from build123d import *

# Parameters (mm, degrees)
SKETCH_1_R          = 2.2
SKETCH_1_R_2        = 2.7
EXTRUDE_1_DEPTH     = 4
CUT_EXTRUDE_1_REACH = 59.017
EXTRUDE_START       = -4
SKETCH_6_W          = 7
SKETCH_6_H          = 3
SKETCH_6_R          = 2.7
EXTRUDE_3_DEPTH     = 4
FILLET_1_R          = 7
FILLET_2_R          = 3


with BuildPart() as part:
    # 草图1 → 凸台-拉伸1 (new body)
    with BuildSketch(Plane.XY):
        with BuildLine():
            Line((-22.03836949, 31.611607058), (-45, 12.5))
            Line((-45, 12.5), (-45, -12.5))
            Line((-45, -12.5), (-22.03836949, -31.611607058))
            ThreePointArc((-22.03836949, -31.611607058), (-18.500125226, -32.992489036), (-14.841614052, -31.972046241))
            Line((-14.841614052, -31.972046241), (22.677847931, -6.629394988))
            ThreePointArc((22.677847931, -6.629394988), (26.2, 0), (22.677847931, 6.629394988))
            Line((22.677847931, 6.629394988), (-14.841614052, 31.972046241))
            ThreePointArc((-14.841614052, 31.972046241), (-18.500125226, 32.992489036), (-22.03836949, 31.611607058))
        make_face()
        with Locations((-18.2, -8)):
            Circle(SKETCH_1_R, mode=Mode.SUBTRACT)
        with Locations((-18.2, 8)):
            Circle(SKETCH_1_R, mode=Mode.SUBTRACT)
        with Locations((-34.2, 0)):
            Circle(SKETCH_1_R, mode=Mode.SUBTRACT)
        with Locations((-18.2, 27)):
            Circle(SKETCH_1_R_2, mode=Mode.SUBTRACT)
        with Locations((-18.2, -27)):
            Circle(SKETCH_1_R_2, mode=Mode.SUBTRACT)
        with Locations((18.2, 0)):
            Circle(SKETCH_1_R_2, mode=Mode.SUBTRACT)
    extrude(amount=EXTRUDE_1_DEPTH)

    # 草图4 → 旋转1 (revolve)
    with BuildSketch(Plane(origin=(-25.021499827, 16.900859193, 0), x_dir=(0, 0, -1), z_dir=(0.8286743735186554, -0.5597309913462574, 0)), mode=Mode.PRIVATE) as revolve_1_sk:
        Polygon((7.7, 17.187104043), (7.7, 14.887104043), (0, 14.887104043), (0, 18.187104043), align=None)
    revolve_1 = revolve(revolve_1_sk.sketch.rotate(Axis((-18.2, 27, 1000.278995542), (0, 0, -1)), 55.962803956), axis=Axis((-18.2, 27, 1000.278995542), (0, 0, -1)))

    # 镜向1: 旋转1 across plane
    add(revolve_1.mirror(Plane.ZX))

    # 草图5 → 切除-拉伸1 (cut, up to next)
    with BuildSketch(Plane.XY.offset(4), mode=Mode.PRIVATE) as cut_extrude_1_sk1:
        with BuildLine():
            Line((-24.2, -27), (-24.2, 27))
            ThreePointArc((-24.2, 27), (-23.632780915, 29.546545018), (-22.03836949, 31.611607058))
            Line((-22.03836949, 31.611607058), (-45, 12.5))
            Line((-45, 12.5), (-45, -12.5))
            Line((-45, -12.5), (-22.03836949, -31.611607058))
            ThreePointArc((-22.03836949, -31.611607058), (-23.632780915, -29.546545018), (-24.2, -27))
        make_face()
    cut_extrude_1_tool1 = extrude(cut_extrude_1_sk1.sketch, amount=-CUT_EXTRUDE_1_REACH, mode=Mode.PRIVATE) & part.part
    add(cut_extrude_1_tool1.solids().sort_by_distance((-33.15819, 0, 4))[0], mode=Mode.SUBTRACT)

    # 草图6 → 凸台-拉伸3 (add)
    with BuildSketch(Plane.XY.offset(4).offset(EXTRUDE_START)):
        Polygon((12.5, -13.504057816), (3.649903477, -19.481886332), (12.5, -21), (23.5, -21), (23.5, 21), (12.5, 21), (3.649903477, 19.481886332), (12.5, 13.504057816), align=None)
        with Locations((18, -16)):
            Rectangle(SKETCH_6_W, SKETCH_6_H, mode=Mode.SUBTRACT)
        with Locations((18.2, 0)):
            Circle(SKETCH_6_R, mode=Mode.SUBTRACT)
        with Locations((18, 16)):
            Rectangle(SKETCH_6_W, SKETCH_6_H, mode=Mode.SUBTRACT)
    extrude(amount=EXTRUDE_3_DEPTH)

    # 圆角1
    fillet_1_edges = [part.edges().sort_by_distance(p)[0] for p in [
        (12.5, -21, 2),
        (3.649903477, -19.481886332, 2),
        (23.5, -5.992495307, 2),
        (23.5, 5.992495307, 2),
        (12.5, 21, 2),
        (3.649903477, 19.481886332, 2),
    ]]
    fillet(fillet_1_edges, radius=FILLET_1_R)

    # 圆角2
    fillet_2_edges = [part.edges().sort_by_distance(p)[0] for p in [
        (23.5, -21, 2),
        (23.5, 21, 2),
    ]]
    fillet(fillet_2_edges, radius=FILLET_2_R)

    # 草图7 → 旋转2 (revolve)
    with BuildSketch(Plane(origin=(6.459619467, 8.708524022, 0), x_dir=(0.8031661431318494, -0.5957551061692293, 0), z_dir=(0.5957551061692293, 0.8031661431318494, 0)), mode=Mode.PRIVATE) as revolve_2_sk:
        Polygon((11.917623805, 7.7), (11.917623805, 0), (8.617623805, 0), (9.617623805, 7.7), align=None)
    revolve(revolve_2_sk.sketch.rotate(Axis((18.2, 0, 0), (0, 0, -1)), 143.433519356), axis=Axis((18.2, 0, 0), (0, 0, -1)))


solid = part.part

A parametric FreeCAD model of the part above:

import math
import FreeCAD as App
import Part
import Sketcher
Q = App.Units.Quantity


def edges_at(feature, points):
    """Names of the edges that pass closest to the given points."""
    edges = feature.Shape.Edges
    near = lambda p: min(range(len(edges)), key=lambda i: edges[i].distToShape(Part.Vertex(*p))[0])
    return sorted({f"Edge{near(p) + 1}" for p in points})

doc = App.newDocument("Part")
body = doc.addObject("PartDesign::Body", "Body")

sketch1 = doc.addObject("Sketcher::SketchObject", "Sketch")
body.addObject(sketch1)
sketch1.AttachmentSupport = (doc.XY_Plane, [""])
sketch1.MapMode = "FlatFace"
sketch1.addGeometry([
    Part.LineSegment(App.Vector(-22, 31.6, 0), App.Vector(-45, 12.5, 0)),
    Part.LineSegment(App.Vector(-45, 12.5, 0), App.Vector(-45, -12.5, 0)),
    Part.LineSegment(App.Vector(-45, -12.5, 0), App.Vector(-22, -31.6, 0)),
    Part.ArcOfCircle(Part.Circle(App.Vector(-18.2, -27, 0), App.Vector(0, 0, 1), 6), math.radians(-130), math.radians(-56)),
    Part.LineSegment(App.Vector(-14.8, -32, 0), App.Vector(22.7, -6.6, 0)),
    Part.ArcOfCircle(Part.Circle(App.Vector(18.2, 0, 0), App.Vector(0, 0, 1), 8), math.radians(-56), math.radians(56)),
    Part.LineSegment(App.Vector(22.7, 6.6, 0), App.Vector(-14.8, 32, 0)),
    Part.ArcOfCircle(Part.Circle(App.Vector(-18.2, 27, 0), App.Vector(0, 0, 1), 6), math.radians(56), math.radians(130)),
    Part.Circle(App.Vector(-18.2, -27, 0), App.Vector(0, 0, 1), 2.7),
    Part.Circle(App.Vector(-18.2, -8, 0), App.Vector(0, 0, 1), 2.2),
    Part.Circle(App.Vector(-34.2, 0, 0), App.Vector(0, 0, 1), 2.2),
    Part.Circle(App.Vector(-18.2, 8, 0), App.Vector(0, 0, 1), 2.2),
    Part.Circle(App.Vector(-18.2, 27, 0), App.Vector(0, 0, 1), 2.7),
    Part.Circle(App.Vector(18.2, 0, 0), App.Vector(0, 0, 1), 2.7),
], False)
sketch1.addConstraint([
    Sketcher.Constraint("Coincident", 0, 2, 1, 1),
    Sketcher.Constraint("Coincident", 1, 2, 2, 1),
    Sketcher.Constraint("Tangent", 2, 2, 3, 1),
    Sketcher.Constraint("Tangent", 3, 2, 4, 1),
    Sketcher.Constraint("Tangent", 4, 2, 5, 1),
    Sketcher.Constraint("Tangent", 5, 2, 6, 1),
    Sketcher.Constraint("Tangent", 6, 2, 7, 1),
    Sketcher.Constraint("Tangent", 7, 2, 0, 1),
    Sketcher.Constraint("Vertical", 1),
    Sketcher.Constraint("Coincident", 8, 3, 3, 3),
    Sketcher.Constraint("Coincident", 12, 3, 7, 3),
    Sketcher.Constraint("Coincident", 13, 3, 5, 3),
    Sketcher.Constraint("Equal", 3, 7),
    Sketcher.Constraint("Equal", 9, 10),
    Sketcher.Constraint("Equal", 10, 11),
    Sketcher.Constraint("Equal", 8, 12),
    Sketcher.Constraint("Equal", 12, 13),
    Sketcher.Constraint("Symmetric", 3, 3, 7, 3, -1),
    Sketcher.Constraint("Symmetric", 9, 3, 11, 3, -1),
    Sketcher.Constraint("PointOnObject", 5, 3, -1),
    Sketcher.Constraint("PointOnObject", 10, 3, -1),
    Sketcher.Constraint("Vertical", 8, 3, 9, 3),
    Sketcher.Constraint("Vertical", 2, 2, 7, 2),
    Sketcher.Constraint("Radius", 3, Q("6 mm")),
    Sketcher.Constraint("Radius", 5, Q("8 mm")),
    Sketcher.Constraint("Diameter", 8, Q("5.4 mm")),
    Sketcher.Constraint("Diameter", 9, Q("4.4 mm")),
    Sketcher.Constraint("DistanceY", 1, 2, 1, 1, Q("25 mm")),
    Sketcher.Constraint("DistanceY", 3, 3, -1, 1, Q("27 mm")),
    Sketcher.Constraint("DistanceY", 9, 3, -1, 1, Q("8 mm")),
    Sketcher.Constraint("DistanceX", 0, 2, -1, 1, Q("45 mm")),
    Sketcher.Constraint("DistanceX", 10, 3, 9, 3, Q("16 mm")),
    Sketcher.Constraint("DistanceX", 3, 3, -1, 1, Q("18.2 mm")),
    Sketcher.Constraint("DistanceX", -1, 1, 5, 3, Q("18.2 mm")),
])
pad1 = doc.addObject("PartDesign::Pad", "Pad")
body.addObject(pad1)
pad1.Profile = sketch1
pad1.Length = 4

sketch2 = doc.addObject("Sketcher::SketchObject", "Sketch001")
body.addObject(sketch2)
sketch2.Placement = App.Placement(App.Vector(-25.0215, 16.900859, 0), App.Rotation(App.Vector(0, 0, -1), App.Vector(0.559730991, 0.828674374, 0), App.Vector(0.828674374, -0.559730991, 0), "ZXY"))
sketch2.addGeometry([
    Part.LineSegment(App.Vector(7.7, 14.9, 0), App.Vector(7.7, 17.2, 0)),
    Part.LineSegment(App.Vector(7.7, 17.2, 0), App.Vector(0, 18.2, 0)),
    Part.LineSegment(App.Vector(0, 18.2, 0), App.Vector(0, 14.9, 0)),
    Part.LineSegment(App.Vector(0, 14.9, 0), App.Vector(7.7, 14.9, 0)),
], False)
sketch2.addGeometry(Part.LineSegment(App.Vector(0, 12.2, 0), App.Vector(7.7, 12.2, 0)), True)
sketch2.addConstraint([
    Sketcher.Constraint("Coincident", 0, 2, 1, 1),
    Sketcher.Constraint("Coincident", 1, 2, 2, 1),
    Sketcher.Constraint("Coincident", 2, 2, 3, 1),
    Sketcher.Constraint("Coincident", 3, 2, 0, 1),
    Sketcher.Constraint("Vertical", 0),
    Sketcher.Constraint("Vertical", 2),
    Sketcher.Constraint("Horizontal", 3),
    Sketcher.Constraint("Horizontal", 4),
    Sketcher.Constraint("PointOnObject", 1, 2, -2),
    Sketcher.Constraint("PointOnObject", 4, 1, -2),
    Sketcher.Constraint("Vertical", 3, 2, 4, 2),
    Sketcher.Constraint("DistanceX", 3, 1, 3, 2, Q("7.7 mm")),
    Sketcher.Constraint("DistanceY", 0, 1, 0, 2, Q("2.3 mm")),
    Sketcher.Constraint("DistanceY", 2, 2, 2, 1, Q("3.3 mm")),
    Sketcher.Constraint("DistanceY", 4, 1, 1, 2, Q("6 mm")),
    Sketcher.Constraint("DistanceY", -1, 1, 0, 2, Q("17.187104 mm")),
])
revolution = doc.addObject("PartDesign::Revolution", "Revolution")
body.addObject(revolution)
revolution.Profile = sketch2
revolution.ReferenceAxis = (sketch2, ["Axis0"])
revolution.Angle = 360
doc.recompute()

mirrored = doc.addObject("PartDesign::Mirrored", "Mirrored")
body.addObject(mirrored)
mirrored.Originals = [revolution]
mirrored.MirrorPlane = (doc.XZ_Plane, [""])
body.Tip = mirrored

sketch3 = doc.addObject("Sketcher::SketchObject", "Sketch002")
body.addObject(sketch3)
sketch3.AttachmentSupport = (doc.XY_Plane, [""])
sketch3.MapMode = "FlatFace"
sketch3.AttachmentOffset = App.Placement(App.Vector(0, 0, 4), App.Rotation())
sketch3.addGeometry([
    Part.LineSegment(App.Vector(-24, -27, 0), App.Vector(-24, 27, 0)),
    Part.ArcOfCircle(Part.Circle(App.Vector(-18, 27, 0), App.Vector(0, 0, 1), 6), math.radians(130), math.radians(180)),
    Part.LineSegment(App.Vector(-22, 32, 0), App.Vector(-45, 12, 0)),
    Part.LineSegment(App.Vector(-45, 12, 0), App.Vector(-45, -12, 0)),
    Part.LineSegment(App.Vector(-45, -12, 0), App.Vector(-22, -32, 0)),
    Part.ArcOfCircle(Part.Circle(App.Vector(-18, -27, 0), App.Vector(0, 0, 1), 6), math.radians(180), math.radians(230)),
], False)
sketch3.addConstraint([
    Sketcher.Constraint("Tangent", 0, 2, 1, 2),
    Sketcher.Constraint("Tangent", 1, 1, 2, 1),
    Sketcher.Constraint("Coincident", 2, 2, 3, 1),
    Sketcher.Constraint("Coincident", 3, 2, 4, 1),
    Sketcher.Constraint("Tangent", 4, 2, 5, 2),
    Sketcher.Constraint("Tangent", 5, 1, 0, 1),
    Sketcher.Constraint("Vertical", 0),
    Sketcher.Constraint("Vertical", 3),
    Sketcher.Constraint("Equal", 1, 5),
    Sketcher.Constraint("Symmetric", 1, 1, 4, 2, -1),
    Sketcher.Constraint("Radius", 1, Q("6 mm")),
    Sketcher.Constraint("DistanceY", 0, 1, 0, 2, Q("54 mm")),
    Sketcher.Constraint("DistanceY", 3, 2, 3, 1, Q("25 mm")),
    Sketcher.Constraint("DistanceX", 2, 2, -1, 1, Q("45 mm")),
    Sketcher.Constraint("DistanceX", 1, 3, -1, 1, Q("18.2 mm")),
])
pocket1 = doc.addObject("PartDesign::Pocket", "Pocket")
body.addObject(pocket1)
pocket1.Profile = sketch3
pocket1.Length = 4

sketch4 = doc.addObject("Sketcher::SketchObject", "Sketch003")
body.addObject(sketch4)
sketch4.AttachmentSupport = (doc.XY_Plane, [""])
sketch4.MapMode = "FlatFace"
sketch4.addGeometry([
    Part.LineSegment(App.Vector(12.5, -13.5, 0), App.Vector(3.6, -19.5, 0)),
    Part.LineSegment(App.Vector(3.6, -19.5, 0), App.Vector(12.5, -21, 0)),
    Part.LineSegment(App.Vector(12.5, -21, 0), App.Vector(23.5, -21, 0)),
    Part.LineSegment(App.Vector(23.5, -21, 0), App.Vector(23.5, 21, 0)),
    Part.LineSegment(App.Vector(23.5, 21, 0), App.Vector(12.5, 21, 0)),
    Part.LineSegment(App.Vector(12.5, 21, 0), App.Vector(3.6, 19.5, 0)),
    Part.LineSegment(App.Vector(3.6, 19.5, 0), App.Vector(12.5, 13.5, 0)),
    Part.LineSegment(App.Vector(12.5, 13.5, 0), App.Vector(12.5, -13.5, 0)),
    Part.LineSegment(App.Vector(21.5, -17.5, 0), App.Vector(14.5, -17.5, 0)),
    Part.LineSegment(App.Vector(14.5, -17.5, 0), App.Vector(14.5, -14.5, 0)),
    Part.LineSegment(App.Vector(14.5, -14.5, 0), App.Vector(21.5, -14.5, 0)),
    Part.LineSegment(App.Vector(21.5, -14.5, 0), App.Vector(21.5, -17.5, 0)),
    Part.Circle(App.Vector(18.2, 0, 0), App.Vector(0, 0, 1), 2.7),
    Part.LineSegment(App.Vector(21.5, 14.5, 0), App.Vector(14.5, 14.5, 0)),
    Part.LineSegment(App.Vector(14.5, 14.5, 0), App.Vector(14.5, 17.5, 0)),
    Part.LineSegment(App.Vector(14.5, 17.5, 0), App.Vector(21.5, 17.5, 0)),
    Part.LineSegment(App.Vector(21.5, 17.5, 0), App.Vector(21.5, 14.5, 0)),
], False)
sketch4.addConstraint([
    Sketcher.Constraint("Coincident", 0, 2, 1, 1),
    Sketcher.Constraint("Coincident", 1, 2, 2, 1),
    Sketcher.Constraint("Coincident", 2, 2, 3, 1),
    Sketcher.Constraint("Coincident", 3, 2, 4, 1),
    Sketcher.Constraint("Coincident", 4, 2, 5, 1),
    Sketcher.Constraint("Coincident", 5, 2, 6, 1),
    Sketcher.Constraint("Coincident", 6, 2, 7, 1),
    Sketcher.Constraint("Coincident", 7, 2, 0, 1),
    Sketcher.Constraint("Coincident", 8, 2, 9, 1),
    Sketcher.Constraint("Coincident", 9, 2, 10, 1),
    Sketcher.Constraint("Coincident", 10, 2, 11, 1),
    Sketcher.Constraint("Coincident", 11, 2, 8, 1),
    Sketcher.Constraint("Coincident", 13, 2, 14, 1),
    Sketcher.Constraint("Coincident", 14, 2, 15, 1),
    Sketcher.Constraint("Coincident", 15, 2, 16, 1),
    Sketcher.Constraint("Coincident", 16, 2, 13, 1),
    Sketcher.Constraint("Horizontal", 2),
    Sketcher.Constraint("Vertical", 3),
    Sketcher.Constraint("Horizontal", 4),
    Sketcher.Constraint("Vertical", 7),
    Sketcher.Constraint("Horizontal", 8),
    Sketcher.Constraint("Vertical", 9),
    Sketcher.Constraint("Horizontal", 10),
    Sketcher.Constraint("Vertical", 11),
    Sketcher.Constraint("Horizontal", 13),
    Sketcher.Constraint("Vertical", 14),
    Sketcher.Constraint("Horizontal", 15),
    Sketcher.Constraint("Vertical", 16),
    Sketcher.Constraint("Symmetric", 1, 2, 4, 2, -1),
    Sketcher.Constraint("Symmetric", 0, 2, 5, 2, -1),
    Sketcher.Constraint("Symmetric", 9, 2, 13, 2, -1),
    Sketcher.Constraint("Symmetric", 11, 2, 15, 2, -1),
    Sketcher.Constraint("PointOnObject", 12, 3, -1),
    Sketcher.Constraint("Vertical", 4, 2, 6, 2),
    Sketcher.Constraint("Equal", 0, 6),
    Sketcher.Constraint("Diameter", 12, Q("5.4 mm")),
    Sketcher.Constraint("DistanceX", 2, 1, 2, 2, Q("11 mm")),
    Sketcher.Constraint("DistanceX", 8, 2, 8, 1, Q("7 mm")),
    Sketcher.Constraint("DistanceY", 3, 1, 3, 2, Q("42 mm")),
    Sketcher.Constraint("DistanceY", 9, 1, 9, 2, Q("3 mm")),
    Sketcher.Constraint("DistanceX", 1, 2, 8, 2, Q("2 mm")),
    Sketcher.Constraint("DistanceX", -1, 1, 12, 3, Q("18.2 mm")),
    Sketcher.Constraint("DistanceX", -1, 1, 1, 2, Q("12.5 mm")),
    Sketcher.Constraint("DistanceY", 8, 2, -1, 1, Q("17.5 mm")),
    Sketcher.Constraint("Distance", 1, Q("8.979358 mm")),
    Sketcher.Constraint("DistanceY", 7, 2, 7, 1, Q("27.008116 mm")),
    Sketcher.Constraint("DistanceY", 6, 2, 5, 2, Q("5.977829 mm")),
])
pad2 = doc.addObject("PartDesign::Pad", "Pad001")
body.addObject(pad2)
pad2.Profile = sketch4
pad2.Length = 4
doc.recompute()

fillet = doc.addObject("PartDesign::Fillet", "Fillet")
body.addObject(fillet)
fillet.Base = (pad2, edges_at(pad2, [
    (12.5, -21, 2),
    (3.65, -19.482, 2),
    (23.5, -5.992, 2),
    (23.5, 5.992, 2),
    (12.5, 21, 2),
    (3.65, 19.482, 2),
]))
fillet.Radius = 7
doc.recompute()

fillet2 = doc.addObject("PartDesign::Fillet", "Fillet001")
body.addObject(fillet2)
fillet2.Base = (fillet, edges_at(fillet, [(23.5, -21, 2), (23.5, 21, 2)]))
fillet2.Radius = 3

sketch5 = doc.addObject("Sketcher::SketchObject", "Sketch004")
body.addObject(sketch5)
sketch5.Placement = App.Placement(App.Vector(6.459619, 8.708524, 0), App.Rotation(App.Vector(0.803166143, -0.595755106, 0), App.Vector(0, 0, -1), App.Vector(0.595755106, 0.803166143, 0), "ZXY"))
sketch5.addGeometry([
    Part.LineSegment(App.Vector(11.9, 0, 0), App.Vector(11.9, 7.7, 0)),
    Part.LineSegment(App.Vector(11.9, 7.7, 0), App.Vector(9.6, 7.7, 0)),
    Part.LineSegment(App.Vector(9.6, 7.7, 0), App.Vector(8.6, 0, 0)),
    Part.LineSegment(App.Vector(8.6, 0, 0), App.Vector(11.9, 0, 0)),
], False)
sketch5.addGeometry(Part.LineSegment(App.Vector(14.6, 0, 0), App.Vector(14.6, 7.7, 0)), True)
sketch5.addConstraint([
    Sketcher.Constraint("Coincident", 0, 2, 1, 1),
    Sketcher.Constraint("Coincident", 1, 2, 2, 1),
    Sketcher.Constraint("Coincident", 2, 2, 3, 1),
    Sketcher.Constraint("Coincident", 3, 2, 0, 1),
    Sketcher.Constraint("Vertical", 0),
    Sketcher.Constraint("Horizontal", 1),
    Sketcher.Constraint("Horizontal", 3),
    Sketcher.Constraint("Vertical", 4),
    Sketcher.Constraint("PointOnObject", 2, 2, -1),
    Sketcher.Constraint("PointOnObject", 4, 1, -1),
    Sketcher.Constraint("Horizontal", 1, 2, 4, 2),
    Sketcher.Constraint("DistanceX", 1, 2, 1, 1, Q("2.3 mm")),
    Sketcher.Constraint("DistanceX", 3, 1, 3, 2, Q("3.3 mm")),
    Sketcher.Constraint("DistanceY", 0, 1, 0, 2, Q("7.7 mm")),
    Sketcher.Constraint("DistanceX", 2, 2, 4, 1, Q("6 mm")),
    Sketcher.Constraint("DistanceX", -1, 1, 0, 2, Q("11.917624 mm")),
])
revolution2 = doc.addObject("PartDesign::Revolution", "Revolution001")
body.addObject(revolution2)
revolution2.Profile = sketch5
revolution2.ReferenceAxis = (sketch5, ["Axis0"])
revolution2.Angle = 360

doc.recompute()
